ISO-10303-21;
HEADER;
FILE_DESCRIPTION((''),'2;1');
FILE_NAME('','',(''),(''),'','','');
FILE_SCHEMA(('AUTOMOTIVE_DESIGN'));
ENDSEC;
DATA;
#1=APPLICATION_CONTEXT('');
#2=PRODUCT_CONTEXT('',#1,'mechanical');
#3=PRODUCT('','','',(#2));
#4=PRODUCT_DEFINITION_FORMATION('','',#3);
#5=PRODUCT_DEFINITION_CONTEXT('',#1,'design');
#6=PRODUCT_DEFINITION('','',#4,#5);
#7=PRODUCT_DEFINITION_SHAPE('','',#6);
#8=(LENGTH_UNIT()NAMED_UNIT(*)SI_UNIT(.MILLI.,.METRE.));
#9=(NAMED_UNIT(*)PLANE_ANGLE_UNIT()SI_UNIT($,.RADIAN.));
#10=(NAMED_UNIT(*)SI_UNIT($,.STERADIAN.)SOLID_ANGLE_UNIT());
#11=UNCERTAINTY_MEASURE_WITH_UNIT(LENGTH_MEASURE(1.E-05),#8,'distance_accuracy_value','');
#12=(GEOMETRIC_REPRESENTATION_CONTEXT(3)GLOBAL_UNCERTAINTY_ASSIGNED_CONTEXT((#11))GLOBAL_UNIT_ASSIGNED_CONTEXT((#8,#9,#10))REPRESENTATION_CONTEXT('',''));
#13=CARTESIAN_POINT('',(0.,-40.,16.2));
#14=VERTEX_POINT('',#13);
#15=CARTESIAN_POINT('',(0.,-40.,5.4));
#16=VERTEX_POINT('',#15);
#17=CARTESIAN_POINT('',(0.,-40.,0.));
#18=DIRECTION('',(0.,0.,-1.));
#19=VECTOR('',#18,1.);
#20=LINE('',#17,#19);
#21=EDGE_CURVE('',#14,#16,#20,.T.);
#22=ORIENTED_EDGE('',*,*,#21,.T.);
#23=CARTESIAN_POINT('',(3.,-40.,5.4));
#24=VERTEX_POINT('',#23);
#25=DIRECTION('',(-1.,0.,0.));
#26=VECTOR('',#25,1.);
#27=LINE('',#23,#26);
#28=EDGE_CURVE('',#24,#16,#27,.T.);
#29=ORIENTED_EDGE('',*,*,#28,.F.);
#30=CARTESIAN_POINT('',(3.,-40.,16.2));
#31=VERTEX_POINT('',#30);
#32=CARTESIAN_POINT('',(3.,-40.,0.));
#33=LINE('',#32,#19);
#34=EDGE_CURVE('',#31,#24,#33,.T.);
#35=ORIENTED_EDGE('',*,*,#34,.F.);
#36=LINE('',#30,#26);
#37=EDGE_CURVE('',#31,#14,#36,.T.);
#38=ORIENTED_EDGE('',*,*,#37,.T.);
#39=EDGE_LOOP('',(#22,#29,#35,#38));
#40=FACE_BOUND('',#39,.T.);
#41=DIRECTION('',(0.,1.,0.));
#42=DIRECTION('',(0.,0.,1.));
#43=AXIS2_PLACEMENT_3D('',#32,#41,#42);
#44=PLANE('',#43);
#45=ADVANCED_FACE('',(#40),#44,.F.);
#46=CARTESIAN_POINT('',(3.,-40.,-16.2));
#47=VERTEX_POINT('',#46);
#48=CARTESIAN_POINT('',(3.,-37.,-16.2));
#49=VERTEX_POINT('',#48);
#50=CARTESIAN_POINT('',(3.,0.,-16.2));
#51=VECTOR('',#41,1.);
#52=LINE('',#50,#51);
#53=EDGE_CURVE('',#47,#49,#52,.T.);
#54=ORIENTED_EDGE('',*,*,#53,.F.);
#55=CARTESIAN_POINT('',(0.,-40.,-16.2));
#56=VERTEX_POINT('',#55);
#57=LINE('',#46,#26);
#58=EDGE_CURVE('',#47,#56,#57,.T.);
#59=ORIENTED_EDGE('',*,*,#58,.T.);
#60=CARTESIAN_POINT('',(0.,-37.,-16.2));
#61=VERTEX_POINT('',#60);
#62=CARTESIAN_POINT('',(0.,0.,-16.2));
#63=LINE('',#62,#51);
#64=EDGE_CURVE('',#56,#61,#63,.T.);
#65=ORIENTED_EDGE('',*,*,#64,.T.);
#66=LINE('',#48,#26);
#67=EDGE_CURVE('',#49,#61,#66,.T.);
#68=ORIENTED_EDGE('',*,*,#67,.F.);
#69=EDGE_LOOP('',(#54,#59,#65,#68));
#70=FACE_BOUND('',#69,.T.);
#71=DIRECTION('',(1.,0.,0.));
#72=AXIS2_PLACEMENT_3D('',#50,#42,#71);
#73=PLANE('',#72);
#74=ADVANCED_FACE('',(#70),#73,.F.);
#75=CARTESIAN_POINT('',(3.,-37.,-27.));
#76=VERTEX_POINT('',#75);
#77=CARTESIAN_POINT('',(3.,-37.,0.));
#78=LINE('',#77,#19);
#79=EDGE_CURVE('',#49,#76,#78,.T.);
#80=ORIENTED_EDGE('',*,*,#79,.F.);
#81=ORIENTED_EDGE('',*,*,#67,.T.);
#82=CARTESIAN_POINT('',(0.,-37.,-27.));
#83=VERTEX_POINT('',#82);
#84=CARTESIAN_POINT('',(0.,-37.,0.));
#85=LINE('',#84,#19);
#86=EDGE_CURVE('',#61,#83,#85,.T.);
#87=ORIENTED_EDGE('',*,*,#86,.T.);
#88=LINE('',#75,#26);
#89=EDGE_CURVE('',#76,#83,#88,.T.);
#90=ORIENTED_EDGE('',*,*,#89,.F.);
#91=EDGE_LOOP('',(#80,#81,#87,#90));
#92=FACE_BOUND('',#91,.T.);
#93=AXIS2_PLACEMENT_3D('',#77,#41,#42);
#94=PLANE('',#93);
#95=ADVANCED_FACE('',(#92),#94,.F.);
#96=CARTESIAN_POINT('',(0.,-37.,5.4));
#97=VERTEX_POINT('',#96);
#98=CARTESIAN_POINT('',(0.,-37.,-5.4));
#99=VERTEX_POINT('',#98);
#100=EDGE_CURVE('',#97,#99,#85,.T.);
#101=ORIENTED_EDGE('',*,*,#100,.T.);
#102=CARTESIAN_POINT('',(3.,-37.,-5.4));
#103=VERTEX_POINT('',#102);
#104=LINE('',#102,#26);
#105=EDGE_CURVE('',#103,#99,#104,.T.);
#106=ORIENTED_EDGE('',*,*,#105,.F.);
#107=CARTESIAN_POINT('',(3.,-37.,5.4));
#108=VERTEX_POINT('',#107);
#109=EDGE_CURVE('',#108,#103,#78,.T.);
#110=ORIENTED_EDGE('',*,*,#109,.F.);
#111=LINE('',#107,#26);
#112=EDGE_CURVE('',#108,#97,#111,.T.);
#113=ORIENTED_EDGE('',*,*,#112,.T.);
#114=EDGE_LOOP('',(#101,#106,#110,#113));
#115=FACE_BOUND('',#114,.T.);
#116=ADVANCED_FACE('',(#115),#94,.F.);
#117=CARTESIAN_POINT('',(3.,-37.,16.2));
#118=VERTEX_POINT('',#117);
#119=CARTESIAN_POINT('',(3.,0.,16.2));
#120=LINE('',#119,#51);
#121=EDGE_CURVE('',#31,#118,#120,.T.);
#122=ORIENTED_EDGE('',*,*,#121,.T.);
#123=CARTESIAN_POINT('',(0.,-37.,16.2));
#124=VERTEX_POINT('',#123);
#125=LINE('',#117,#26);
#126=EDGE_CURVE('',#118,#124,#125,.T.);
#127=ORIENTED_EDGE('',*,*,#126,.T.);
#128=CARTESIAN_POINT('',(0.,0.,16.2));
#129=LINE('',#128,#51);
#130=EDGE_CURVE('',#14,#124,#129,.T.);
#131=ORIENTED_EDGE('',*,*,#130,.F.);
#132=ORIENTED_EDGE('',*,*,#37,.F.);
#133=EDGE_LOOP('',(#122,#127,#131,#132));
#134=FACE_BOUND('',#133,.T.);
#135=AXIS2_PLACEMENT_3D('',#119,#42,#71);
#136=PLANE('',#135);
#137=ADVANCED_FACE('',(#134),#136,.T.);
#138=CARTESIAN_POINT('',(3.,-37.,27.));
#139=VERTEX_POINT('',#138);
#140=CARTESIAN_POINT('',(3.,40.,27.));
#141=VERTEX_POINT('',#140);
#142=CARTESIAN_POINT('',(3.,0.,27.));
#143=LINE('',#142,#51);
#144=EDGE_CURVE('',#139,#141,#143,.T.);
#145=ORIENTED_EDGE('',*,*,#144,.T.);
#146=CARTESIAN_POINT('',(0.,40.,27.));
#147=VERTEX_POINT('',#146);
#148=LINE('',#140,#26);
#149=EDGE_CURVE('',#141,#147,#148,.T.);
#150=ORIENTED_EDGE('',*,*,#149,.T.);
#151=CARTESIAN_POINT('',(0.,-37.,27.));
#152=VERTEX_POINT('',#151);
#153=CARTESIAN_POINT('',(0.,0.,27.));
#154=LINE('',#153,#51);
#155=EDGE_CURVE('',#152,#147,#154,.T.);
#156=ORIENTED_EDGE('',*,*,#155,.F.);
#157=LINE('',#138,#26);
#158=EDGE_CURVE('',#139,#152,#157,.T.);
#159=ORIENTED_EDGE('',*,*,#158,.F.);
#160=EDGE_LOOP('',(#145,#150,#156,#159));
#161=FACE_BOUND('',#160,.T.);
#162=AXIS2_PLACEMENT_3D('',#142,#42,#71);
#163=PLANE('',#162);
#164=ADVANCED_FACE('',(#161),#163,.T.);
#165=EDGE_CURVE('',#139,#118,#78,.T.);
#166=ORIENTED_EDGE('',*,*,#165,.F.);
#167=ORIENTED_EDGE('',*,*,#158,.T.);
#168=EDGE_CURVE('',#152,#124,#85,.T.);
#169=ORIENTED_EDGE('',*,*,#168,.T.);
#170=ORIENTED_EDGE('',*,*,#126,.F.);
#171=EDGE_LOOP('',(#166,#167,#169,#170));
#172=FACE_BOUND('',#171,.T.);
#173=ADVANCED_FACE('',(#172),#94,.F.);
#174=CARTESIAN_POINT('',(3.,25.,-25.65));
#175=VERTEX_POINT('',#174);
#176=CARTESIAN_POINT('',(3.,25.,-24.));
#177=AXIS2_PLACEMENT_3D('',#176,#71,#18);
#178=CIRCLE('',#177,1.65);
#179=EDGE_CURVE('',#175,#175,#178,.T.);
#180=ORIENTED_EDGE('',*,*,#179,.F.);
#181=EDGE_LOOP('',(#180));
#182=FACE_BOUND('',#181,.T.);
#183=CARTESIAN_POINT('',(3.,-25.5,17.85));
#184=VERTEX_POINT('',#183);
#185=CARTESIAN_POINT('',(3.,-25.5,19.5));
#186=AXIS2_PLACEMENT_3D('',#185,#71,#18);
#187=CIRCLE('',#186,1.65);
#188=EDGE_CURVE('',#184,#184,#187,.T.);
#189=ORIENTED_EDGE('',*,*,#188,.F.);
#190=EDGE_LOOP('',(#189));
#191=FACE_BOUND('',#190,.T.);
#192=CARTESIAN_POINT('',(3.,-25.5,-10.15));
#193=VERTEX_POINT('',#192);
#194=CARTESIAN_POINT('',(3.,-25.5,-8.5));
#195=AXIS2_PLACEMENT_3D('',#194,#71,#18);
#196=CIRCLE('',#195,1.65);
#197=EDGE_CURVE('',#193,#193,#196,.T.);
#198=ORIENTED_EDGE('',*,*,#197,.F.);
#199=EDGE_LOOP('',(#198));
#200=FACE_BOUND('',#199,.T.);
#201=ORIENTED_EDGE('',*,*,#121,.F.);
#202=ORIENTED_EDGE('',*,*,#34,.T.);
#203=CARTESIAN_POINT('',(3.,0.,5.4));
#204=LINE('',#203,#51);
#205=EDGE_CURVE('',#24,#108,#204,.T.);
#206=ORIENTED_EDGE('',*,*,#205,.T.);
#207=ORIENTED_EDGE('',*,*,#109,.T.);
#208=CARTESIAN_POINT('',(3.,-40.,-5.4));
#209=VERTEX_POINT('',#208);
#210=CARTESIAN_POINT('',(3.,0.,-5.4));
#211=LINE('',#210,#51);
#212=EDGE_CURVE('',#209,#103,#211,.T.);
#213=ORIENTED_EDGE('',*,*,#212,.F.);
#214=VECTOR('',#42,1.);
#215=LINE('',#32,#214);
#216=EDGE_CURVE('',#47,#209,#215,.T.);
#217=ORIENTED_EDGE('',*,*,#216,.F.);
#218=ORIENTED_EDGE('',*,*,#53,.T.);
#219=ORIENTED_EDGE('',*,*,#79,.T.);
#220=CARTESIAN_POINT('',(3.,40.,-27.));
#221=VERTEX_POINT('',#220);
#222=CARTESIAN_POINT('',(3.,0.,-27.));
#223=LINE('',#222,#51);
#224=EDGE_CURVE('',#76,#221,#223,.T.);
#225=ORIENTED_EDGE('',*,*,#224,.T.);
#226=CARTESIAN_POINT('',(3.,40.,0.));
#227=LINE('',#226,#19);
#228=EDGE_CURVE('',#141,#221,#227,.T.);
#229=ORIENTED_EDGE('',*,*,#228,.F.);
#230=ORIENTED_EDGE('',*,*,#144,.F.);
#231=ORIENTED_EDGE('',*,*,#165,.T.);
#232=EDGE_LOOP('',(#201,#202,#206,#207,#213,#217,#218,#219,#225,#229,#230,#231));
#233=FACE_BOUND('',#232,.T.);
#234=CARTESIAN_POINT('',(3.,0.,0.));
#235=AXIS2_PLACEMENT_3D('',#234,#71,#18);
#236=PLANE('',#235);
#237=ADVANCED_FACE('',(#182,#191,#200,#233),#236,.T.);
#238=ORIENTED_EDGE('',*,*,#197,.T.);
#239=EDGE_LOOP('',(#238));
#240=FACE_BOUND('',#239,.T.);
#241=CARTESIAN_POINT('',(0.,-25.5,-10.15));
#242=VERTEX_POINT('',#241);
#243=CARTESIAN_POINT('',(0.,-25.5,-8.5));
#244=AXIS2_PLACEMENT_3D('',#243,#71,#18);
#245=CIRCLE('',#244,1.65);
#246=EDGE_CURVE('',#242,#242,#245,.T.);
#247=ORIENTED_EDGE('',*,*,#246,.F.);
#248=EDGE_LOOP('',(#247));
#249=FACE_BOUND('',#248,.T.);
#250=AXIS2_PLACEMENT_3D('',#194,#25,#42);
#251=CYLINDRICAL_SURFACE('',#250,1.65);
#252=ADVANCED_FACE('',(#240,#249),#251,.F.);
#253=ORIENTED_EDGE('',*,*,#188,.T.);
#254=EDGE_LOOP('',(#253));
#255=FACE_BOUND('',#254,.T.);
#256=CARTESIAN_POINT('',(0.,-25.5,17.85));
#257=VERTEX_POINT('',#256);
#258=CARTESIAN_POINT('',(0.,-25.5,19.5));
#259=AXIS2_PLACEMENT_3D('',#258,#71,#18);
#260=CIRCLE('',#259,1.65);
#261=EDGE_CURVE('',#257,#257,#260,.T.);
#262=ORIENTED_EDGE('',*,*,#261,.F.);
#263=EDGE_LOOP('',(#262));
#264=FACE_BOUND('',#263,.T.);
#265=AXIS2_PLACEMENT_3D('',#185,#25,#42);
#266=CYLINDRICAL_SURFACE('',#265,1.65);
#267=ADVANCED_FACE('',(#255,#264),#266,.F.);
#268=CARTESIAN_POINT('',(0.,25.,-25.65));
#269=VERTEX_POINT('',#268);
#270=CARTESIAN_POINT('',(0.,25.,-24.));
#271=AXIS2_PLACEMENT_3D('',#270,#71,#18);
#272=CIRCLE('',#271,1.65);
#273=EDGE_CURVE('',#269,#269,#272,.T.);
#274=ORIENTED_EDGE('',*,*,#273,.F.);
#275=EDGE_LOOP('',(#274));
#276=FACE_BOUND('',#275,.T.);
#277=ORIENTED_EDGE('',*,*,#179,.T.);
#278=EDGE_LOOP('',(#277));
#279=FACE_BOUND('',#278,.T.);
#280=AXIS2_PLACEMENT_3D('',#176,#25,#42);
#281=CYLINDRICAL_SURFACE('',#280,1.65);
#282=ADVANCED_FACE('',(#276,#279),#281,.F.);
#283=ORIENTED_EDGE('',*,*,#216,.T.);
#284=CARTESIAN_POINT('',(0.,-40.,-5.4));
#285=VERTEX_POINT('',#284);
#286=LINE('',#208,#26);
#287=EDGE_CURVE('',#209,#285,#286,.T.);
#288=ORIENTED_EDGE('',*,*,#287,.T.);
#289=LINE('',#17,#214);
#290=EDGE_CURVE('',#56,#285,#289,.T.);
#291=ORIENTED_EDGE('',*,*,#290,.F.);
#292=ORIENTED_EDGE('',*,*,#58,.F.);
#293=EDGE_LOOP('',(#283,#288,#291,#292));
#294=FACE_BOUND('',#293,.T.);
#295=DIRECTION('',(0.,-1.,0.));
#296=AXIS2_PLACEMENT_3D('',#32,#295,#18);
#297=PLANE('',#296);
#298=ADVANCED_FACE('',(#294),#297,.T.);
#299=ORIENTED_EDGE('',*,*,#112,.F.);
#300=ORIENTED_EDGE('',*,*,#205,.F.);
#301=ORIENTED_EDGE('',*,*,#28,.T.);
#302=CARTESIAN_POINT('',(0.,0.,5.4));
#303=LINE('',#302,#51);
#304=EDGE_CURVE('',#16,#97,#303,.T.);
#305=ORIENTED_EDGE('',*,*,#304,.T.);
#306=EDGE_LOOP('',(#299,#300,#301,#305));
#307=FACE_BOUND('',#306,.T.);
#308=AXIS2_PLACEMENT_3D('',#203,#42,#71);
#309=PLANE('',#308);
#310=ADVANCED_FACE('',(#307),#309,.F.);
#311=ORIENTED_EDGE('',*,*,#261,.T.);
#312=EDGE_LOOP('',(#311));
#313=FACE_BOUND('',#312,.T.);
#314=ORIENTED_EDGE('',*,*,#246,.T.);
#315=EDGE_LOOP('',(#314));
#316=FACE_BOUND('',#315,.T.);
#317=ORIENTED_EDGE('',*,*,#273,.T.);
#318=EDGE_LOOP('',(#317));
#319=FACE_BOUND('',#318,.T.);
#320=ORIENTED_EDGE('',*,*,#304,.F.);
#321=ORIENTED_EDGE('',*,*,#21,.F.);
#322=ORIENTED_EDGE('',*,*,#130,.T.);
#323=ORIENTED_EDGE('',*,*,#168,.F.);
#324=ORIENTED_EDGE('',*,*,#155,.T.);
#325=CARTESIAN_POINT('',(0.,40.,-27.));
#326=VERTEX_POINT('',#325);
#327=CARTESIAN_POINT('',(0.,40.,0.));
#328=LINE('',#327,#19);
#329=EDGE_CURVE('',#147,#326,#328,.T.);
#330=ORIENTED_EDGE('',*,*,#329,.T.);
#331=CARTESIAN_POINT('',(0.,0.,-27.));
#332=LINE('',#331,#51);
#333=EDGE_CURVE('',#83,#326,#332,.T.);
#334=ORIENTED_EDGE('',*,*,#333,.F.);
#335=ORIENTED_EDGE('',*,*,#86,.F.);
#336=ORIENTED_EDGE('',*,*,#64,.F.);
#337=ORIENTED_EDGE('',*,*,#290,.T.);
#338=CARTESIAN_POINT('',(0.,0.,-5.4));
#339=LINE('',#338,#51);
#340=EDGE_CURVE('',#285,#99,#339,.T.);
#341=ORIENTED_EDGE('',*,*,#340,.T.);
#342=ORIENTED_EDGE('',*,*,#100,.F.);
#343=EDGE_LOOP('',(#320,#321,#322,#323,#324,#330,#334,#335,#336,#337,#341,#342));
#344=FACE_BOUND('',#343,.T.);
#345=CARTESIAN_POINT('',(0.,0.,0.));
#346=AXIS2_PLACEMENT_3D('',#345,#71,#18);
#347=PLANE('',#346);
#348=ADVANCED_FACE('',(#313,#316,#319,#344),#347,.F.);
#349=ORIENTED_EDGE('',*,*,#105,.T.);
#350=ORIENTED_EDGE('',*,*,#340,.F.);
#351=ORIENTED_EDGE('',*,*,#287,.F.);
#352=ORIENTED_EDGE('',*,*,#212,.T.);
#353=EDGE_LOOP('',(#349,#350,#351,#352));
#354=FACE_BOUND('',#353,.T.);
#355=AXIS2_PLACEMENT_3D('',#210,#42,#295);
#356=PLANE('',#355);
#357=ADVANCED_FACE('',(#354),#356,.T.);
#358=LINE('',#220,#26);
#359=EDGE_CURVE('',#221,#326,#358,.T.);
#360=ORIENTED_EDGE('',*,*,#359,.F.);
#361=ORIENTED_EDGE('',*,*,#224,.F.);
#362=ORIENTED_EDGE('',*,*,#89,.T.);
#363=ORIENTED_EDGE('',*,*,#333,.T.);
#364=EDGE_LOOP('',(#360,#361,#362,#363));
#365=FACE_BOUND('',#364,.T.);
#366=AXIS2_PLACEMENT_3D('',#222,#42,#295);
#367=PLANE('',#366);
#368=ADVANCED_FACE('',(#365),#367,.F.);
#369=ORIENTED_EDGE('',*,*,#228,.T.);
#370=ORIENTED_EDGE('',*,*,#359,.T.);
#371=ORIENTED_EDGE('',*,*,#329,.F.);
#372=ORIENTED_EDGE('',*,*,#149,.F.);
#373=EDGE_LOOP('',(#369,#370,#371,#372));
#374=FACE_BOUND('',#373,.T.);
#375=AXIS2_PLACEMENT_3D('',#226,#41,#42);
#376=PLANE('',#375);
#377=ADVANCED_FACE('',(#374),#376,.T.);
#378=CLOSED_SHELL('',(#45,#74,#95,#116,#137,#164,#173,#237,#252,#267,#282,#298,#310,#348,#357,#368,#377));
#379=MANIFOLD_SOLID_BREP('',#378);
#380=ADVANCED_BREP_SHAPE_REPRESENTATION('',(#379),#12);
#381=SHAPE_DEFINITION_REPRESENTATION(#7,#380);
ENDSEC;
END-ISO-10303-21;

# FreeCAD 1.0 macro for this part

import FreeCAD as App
import Part
import Sketcher
from FreeCAD import Vector


def add_polygon(sketch, points):
    """Adds a closed chain of lines whose ends are joined by coincident constraints."""
    first, n = sketch.GeometryCount, len(points)
    for a, b in zip(points, points[1:] + points[:1]):
        sketch.addGeometry(Part.LineSegment(App.Vector(*a, 0), App.Vector(*b, 0)), False)
    for i in range(n):
        sketch.addConstraint(Sketcher.Constraint("Coincident", first + i, 2, first + (i + 1) % n, 1))

doc = App.newDocument("Part")
body = doc.addObject("PartDesign::Body", "Body")

sketch1 = body.newObject("Sketcher::SketchObject", "Sketch")
sketch1.AttachmentSupport = (doc.getObject("YZ_Plane"), [""])
sketch1.MapMode = "FlatFace"
add_polygon(sketch1, [(40, -27), (40, 27), (-37, 27), (-37, 16.2), (-40, 16.2), (-40, 5.4), (-37, 5.4), (-37, -5.4), (-40, -5.4), (-40, -16.2), (-37, -16.2), (-37, -27)])
sketch1.addGeometry(Part.Circle(Vector(-25.5, -8.5, 0), Vector(0, 0, 1), 1.65), False)
sketch1.addGeometry(Part.Circle(Vector(-25.5, 19.5, 0), Vector(0, 0, 1), 1.65), False)
sketch1.addGeometry(Part.Circle(Vector(25, -24, 0), Vector(0, 0, 1), 1.65), False)
sketch1.addConstraint(Sketcher.Constraint("Vertical", 0))
sketch1.addConstraint(Sketcher.Constraint("Horizontal", 1))
sketch1.addConstraint(Sketcher.Constraint("Vertical", 2))
sketch1.addConstraint(Sketcher.Constraint("Horizontal", 3))
sketch1.addConstraint(Sketcher.Constraint("Vertical", 4))
sketch1.addConstraint(Sketcher.Constraint("Horizontal", 5))
sketch1.addConstraint(Sketcher.Constraint("Vertical", 6))
sketch1.addConstraint(Sketcher.Constraint("Horizontal", 7))
sketch1.addConstraint(Sketcher.Constraint("Vertical", 8))
sketch1.addConstraint(Sketcher.Constraint("Horizontal", 9))
sketch1.addConstraint(Sketcher.Constraint("Vertical", 10))
sketch1.addConstraint(Sketcher.Constraint("Horizontal", 11))
sketch1.addConstraint(Sketcher.Constraint("Equal", 12, 13))
sketch1.addConstraint(Sketcher.Constraint("Equal", 13, 14))
sketch1.addConstraint(Sketcher.Constraint("Symmetric", 4, 2, 7, 2, -1))
sketch1.addConstraint(Sketcher.Constraint("Symmetric", 2, 2, 9, 2, -1))
sketch1.addConstraint(Sketcher.Constraint("Vertical", 12, 3, 13, 3))
sketch1.addConstraint(Sketcher.Constraint("Vertical", 2, 2, 5, 2))
sketch1.addConstraint(Sketcher.Constraint("Equal", 2, 4))
sketch1.addConstraint(Sketcher.Constraint("Equal", 4, 6))
sketch1.addConstraint(Sketcher.Constraint("Equal", 8, 10))
sketch1.addConstraint(Sketcher.Constraint("Diameter", 12, 3.3))
sketch1.addConstraint(Sketcher.Constraint("DistanceX", 1, 2, 1, 1, 77.0))
sketch1.addConstraint(Sketcher.Constraint("DistanceX", 3, 2, 3, 1, 3.0))
sketch1.addConstraint(Sketcher.Constraint("DistanceY", 0, 1, 0, 2, 54.0))
sketch1.addConstraint(Sketcher.Constraint("DistanceX", -1, 1, 14, 3, 25.0))
sketch1.addConstraint(Sketcher.Constraint("DistanceY", 14, 3, -1, 1, 24.0))
sketch1.addConstraint(Sketcher.Constraint("DistanceX", -1, 1, 0, 2, 40.0))
sketch1.addConstraint(Sketcher.Constraint("DistanceY", 12, 3, 13, 3, 28.0))
sketch1.addConstraint(Sketcher.Constraint("DistanceX", 12, 3, -1, 1, 25.5))
sketch1.addConstraint(Sketcher.Constraint("DistanceY", 12, 3, -1, 1, 8.5))
pad1 = body.newObject("PartDesign::Pad", "Pad")
pad1.Profile = sketch1
pad1.Length = 3

doc.recompute()
